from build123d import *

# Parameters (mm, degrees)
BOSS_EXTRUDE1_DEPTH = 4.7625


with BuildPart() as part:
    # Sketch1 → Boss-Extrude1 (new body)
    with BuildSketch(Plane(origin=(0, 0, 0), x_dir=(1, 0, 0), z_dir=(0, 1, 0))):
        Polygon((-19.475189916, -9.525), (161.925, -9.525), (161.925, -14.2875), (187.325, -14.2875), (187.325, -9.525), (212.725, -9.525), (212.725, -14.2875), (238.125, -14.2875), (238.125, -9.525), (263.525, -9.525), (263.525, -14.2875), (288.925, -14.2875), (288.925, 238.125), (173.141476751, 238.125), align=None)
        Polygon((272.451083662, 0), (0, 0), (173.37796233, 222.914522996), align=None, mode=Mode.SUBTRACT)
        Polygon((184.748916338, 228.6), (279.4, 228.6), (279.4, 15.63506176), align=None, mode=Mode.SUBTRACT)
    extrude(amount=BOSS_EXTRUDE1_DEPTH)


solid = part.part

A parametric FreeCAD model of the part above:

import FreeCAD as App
import Part
import Sketcher
from FreeCAD import Vector
Q = App.Units.Quantity

doc = App.newDocument("Part")
body = doc.addObject("PartDesign::Body", "Body")

# Sketch on XZ plane
sketch1 = doc.addObject("Sketcher::SketchObject", "Sketch")
body.addObject(sketch1)
sketch1.AttachmentSupport = (doc.XZ_Plane, [""])
sketch1.MapMode = "FlatFace"
sketch1.addGeometry(Part.LineSegment(Vector(-19.47519, 9.525, 0), Vector(161.925, 9.525, 0)), False)
sketch1.addGeometry(Part.LineSegment(Vector(161.925, 9.525, 0), Vector(161.925, 14.2875, 0)), False)
sketch1.addGeometry(Part.LineSegment(Vector(161.925, 14.2875, 0), Vector(187.325, 14.2875, 0)), False)
sketch1.addGeometry(Part.LineSegment(Vector(187.325, 14.2875, 0), Vector(187.325, 9.525, 0)), False)
sketch1.addGeometry(Part.LineSegment(Vector(187.325, 9.525, 0), Vector(212.725, 9.525, 0)), False)
sketch1.addGeometry(Part.LineSegment(Vector(212.725, 9.525, 0), Vector(212.725, 14.2875, 0)), False)
sketch1.addGeometry(Part.LineSegment(Vector(212.725, 14.2875, 0), Vector(238.125, 14.2875, 0)), False)
sketch1.addGeometry(Part.LineSegment(Vector(238.125, 14.2875, 0), Vector(238.125, 9.525, 0)), False)
sketch1.addGeometry(Part.LineSegment(Vector(238.125, 9.525, 0), Vector(263.525, 9.525, 0)), False)
sketch1.addGeometry(Part.LineSegment(Vector(263.525, 9.525, 0), Vector(263.525, 14.2875, 0)), False)
sketch1.addGeometry(Part.LineSegment(Vector(263.525, 14.2875, 0), Vector(288.925, 14.2875, 0)), False)
sketch1.addGeometry(Part.LineSegment(Vector(288.925, 14.2875, 0), Vector(288.925, -238.125, 0)), False)
sketch1.addGeometry(Part.LineSegment(Vector(288.925, -238.125, 0), Vector(173.141477, -238.125, 0)), False)
sketch1.addGeometry(Part.LineSegment(Vector(173.141477, -238.125, 0), Vector(-19.47519, 9.525, 0)), False)
sketch1.addGeometry(Part.LineSegment(Vector(173.377962, -222.914523, 0), Vector(272.451084, 0, 0)), False)
sketch1.addGeometry(Part.LineSegment(Vector(272.451084, 0, 0), Vector(0, 0, 0)), False)
sketch1.addGeometry(Part.LineSegment(Vector(0, 0, 0), Vector(173.377962, -222.914523, 0)), False)
sketch1.addGeometry(Part.LineSegment(Vector(279.4, -15.635062, 0), Vector(184.748916, -228.6, 0)), False)
sketch1.addGeometry(Part.LineSegment(Vector(184.748916, -228.6, 0), Vector(279.4, -228.6, 0)), False)
sketch1.addGeometry(Part.LineSegment(Vector(279.4, -228.6, 0), Vector(279.4, -15.635062, 0)), False)
sketch1.addConstraint(Sketcher.Constraint("Coincident", 0, 2, 1, 1))
sketch1.addConstraint(Sketcher.Constraint("Coincident", 1, 2, 2, 1))
sketch1.addConstraint(Sketcher.Constraint("Coincident", 2, 2, 3, 1))
sketch1.addConstraint(Sketcher.Constraint("Coincident", 3, 2, 4, 1))
sketch1.addConstraint(Sketcher.Constraint("Coincident", 4, 2, 5, 1))
sketch1.addConstraint(Sketcher.Constraint("Coincident", 5, 2, 6, 1))
sketch1.addConstraint(Sketcher.Constraint("Coincident", 6, 2, 7, 1))
sketch1.addConstraint(Sketcher.Constraint("Coincident", 7, 2, 8, 1))
sketch1.addConstraint(Sketcher.Constraint("Coincident", 8, 2, 9, 1))
sketch1.addConstraint(Sketcher.Constraint("Coincident", 9, 2, 10, 1))
sketch1.addConstraint(Sketcher.Constraint("Coincident", 10, 2, 11, 1))
sketch1.addConstraint(Sketcher.Constraint("Coincident", 11, 2, 12, 1))
sketch1.addConstraint(Sketcher.Constraint("Coincident", 12, 2, 13, 1))
sketch1.addConstraint(Sketcher.Constraint("Coincident", 13, 2, 0, 1))
sketch1.addConstraint(Sketcher.Constraint("Coincident", 14, 2, 15, 1))
sketch1.addConstraint(Sketcher.Constraint("Coincident", 15, 2, 16, 1))
sketch1.addConstraint(Sketcher.Constraint("Coincident", 16, 2, 14, 1))
sketch1.addConstraint(Sketcher.Constraint("Coincident", 17, 2, 18, 1))
sketch1.addConstraint(Sketcher.Constraint("Coincident", 18, 2, 19, 1))
sketch1.addConstraint(Sketcher.Constraint("Coincident", 19, 2, 17, 1))
sketch1.addConstraint(Sketcher.Constraint("Horizontal", 0))
sketch1.addConstraint(Sketcher.Constraint("Vertical", 1))
sketch1.addConstraint(Sketcher.Constraint("Horizontal", 2))
sketch1.addConstraint(Sketcher.Constraint("Vertical", 3))
sketch1.addConstraint(Sketcher.Constraint("Horizontal", 4))
sketch1.addConstraint(Sketcher.Constraint("Vertical", 5))
sketch1.addConstraint(Sketcher.Constraint("Horizontal", 6))
sketch1.addConstraint(Sketcher.Constraint("Vertical", 7))
sketch1.addConstraint(Sketcher.Constraint("Horizontal", 8))
sketch1.addConstraint(Sketcher.Constraint("Vertical", 9))
sketch1.addConstraint(Sketcher.Constraint("Horizontal", 10))
sketch1.addConstraint(Sketcher.Constraint("Vertical", 11))
sketch1.addConstraint(Sketcher.Constraint("Horizontal", 12))
sketch1.addConstraint(Sketcher.Constraint("Horizontal", 15))
sketch1.addConstraint(Sketcher.Constraint("Horizontal", 18))
sketch1.addConstraint(Sketcher.Constraint("Vertical", 19))
sketch1.addConstraint(Sketcher.Constraint("Coincident", 15, 2, -1, 1))
sketch1.addConstraint(Sketcher.Constraint("Parallel", 13, 16))
sketch1.addConstraint(Sketcher.Constraint("Parallel", 14, 17))
sketch1.addConstraint(Sketcher.Constraint("Horizontal", 0, 2, 3, 2))
sketch1.addConstraint(Sketcher.Constraint("Horizontal", 2, 2, 5, 2))
sketch1.addConstraint(Sketcher.Constraint("Horizontal", 4, 2, 7, 2))
sketch1.addConstraint(Sketcher.Constraint("Horizontal", 6, 2, 9, 2))
sketch1.addConstraint(Sketcher.Constraint("Equal", 2, 4))
sketch1.addConstraint(Sketcher.Constraint("Equal", 4, 6))
sketch1.addConstraint(Sketcher.Constraint("Equal", 6, 8))
sketch1.addConstraint(Sketcher.Constraint("Equal", 8, 10))
sketch1.addConstraint(Sketcher.Constraint("DistanceX", 2, 1, 2, 2, Q("1 in")))
sketch1.addConstraint(Sketcher.Constraint("DistanceY", 17, 2, -1, 1, Q("9 in")))
sketch1.addConstraint(Sketcher.Constraint("DistanceX", -1, 1, 18, 2, Q("11 in")))
sketch1.addConstraint(Sketcher.Constraint("DistanceY", 1, 1, 1, 2, Q("0.1875 in")))
sketch1.addConstraint(Sketcher.Constraint("DistanceY", 11, 2, 11, 1, Q("9.9375 in")))
sketch1.addConstraint(Sketcher.Constraint("DistanceX", -1, 1, 0, 2, Q("6.375 in")))
sketch1.addConstraint(Sketcher.Constraint("DistanceY", -1, 1, 0, 2, Q("0.375 in")))
sketch1.addConstraint(Sketcher.Constraint("DistanceX", 0, 1, 0, 2, 181.40019))
sketch1.addConstraint(Sketcher.Constraint("DistanceY", 19, 1, 19, 2, 212.964938))
sketch1.addConstraint(Sketcher.Constraint("Distance", 13, 313.738271))
sketch1.addConstraint(Sketcher.Constraint("Distance", 14, 243.939271))
sketch1.addConstraint(Sketcher.Constraint("DistanceX", 15, 2, 15, 1, 272.451084))
pad1 = doc.addObject("PartDesign::Pad", "Pad")
body.addObject(pad1)
pad1.Profile = sketch1
pad1.Length = Q("0.1875 in")
pad1.Reversed = True

doc.recompute()
